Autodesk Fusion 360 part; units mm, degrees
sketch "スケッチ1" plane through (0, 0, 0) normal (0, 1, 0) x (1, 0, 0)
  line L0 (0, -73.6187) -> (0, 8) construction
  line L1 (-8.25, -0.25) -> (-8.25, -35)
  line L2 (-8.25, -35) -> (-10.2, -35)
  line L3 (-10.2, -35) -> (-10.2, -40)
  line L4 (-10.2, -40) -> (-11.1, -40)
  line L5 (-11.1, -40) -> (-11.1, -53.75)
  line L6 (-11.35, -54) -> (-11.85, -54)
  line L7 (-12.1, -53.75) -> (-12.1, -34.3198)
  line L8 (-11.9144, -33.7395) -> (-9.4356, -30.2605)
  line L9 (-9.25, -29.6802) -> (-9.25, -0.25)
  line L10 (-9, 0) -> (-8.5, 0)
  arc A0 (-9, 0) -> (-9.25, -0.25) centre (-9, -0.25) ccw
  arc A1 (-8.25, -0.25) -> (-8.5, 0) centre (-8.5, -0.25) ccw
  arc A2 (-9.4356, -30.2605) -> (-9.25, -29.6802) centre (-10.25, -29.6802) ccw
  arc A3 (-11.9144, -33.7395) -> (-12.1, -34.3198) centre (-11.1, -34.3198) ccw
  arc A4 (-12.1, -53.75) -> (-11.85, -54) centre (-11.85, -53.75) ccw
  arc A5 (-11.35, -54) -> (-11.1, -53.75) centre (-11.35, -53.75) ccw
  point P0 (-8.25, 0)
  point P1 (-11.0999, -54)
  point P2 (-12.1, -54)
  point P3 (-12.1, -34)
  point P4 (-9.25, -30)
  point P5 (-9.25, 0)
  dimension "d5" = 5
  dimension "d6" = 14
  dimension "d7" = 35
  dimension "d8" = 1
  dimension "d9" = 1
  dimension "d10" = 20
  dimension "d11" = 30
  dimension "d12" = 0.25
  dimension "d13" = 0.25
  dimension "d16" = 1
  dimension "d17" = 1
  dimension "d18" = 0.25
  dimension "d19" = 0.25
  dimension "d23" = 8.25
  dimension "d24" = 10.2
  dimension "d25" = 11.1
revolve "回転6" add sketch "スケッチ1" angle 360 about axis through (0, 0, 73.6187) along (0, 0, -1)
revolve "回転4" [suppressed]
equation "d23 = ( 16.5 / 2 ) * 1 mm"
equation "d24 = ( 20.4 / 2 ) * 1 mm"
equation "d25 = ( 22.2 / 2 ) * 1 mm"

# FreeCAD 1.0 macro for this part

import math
import FreeCAD as App
import Part
import Sketcher

V = App.Vector
Q = App.Units.Quantity

doc = App.newDocument("Part")
body = doc.addObject("PartDesign::Body", "Body")

# Sketch on XZ plane
sketch1 = body.newObject("Sketcher::SketchObject", "Sketch")
sketch1.AttachmentSupport = (doc.getObject("XZ_Plane"), [""])
sketch1.MapMode = "FlatFace"
sketch1.addGeometry([
    Part.LineSegment(V(-8.25, 35, 0), V(-8.25, 0.25, 0)),  # 0
    Part.ArcOfCircle(Part.Circle(V(-8.5, 0.25, 0), V(0, 0, 1), 0.25), math.radians(-90), math.radians(0)),  # 1
    Part.LineSegment(V(-8.5, 0, 0), V(-9, 0, 0)),  # 2
    Part.ArcOfCircle(Part.Circle(V(-9, 0.25, 0), V(0, 0, 1), 0.25), math.radians(180), math.radians(270)),  # 3
    Part.LineSegment(V(-9.25, 0.25, 0), V(-9.25, 29.6802, 0)),  # 4
    Part.ArcOfCircle(Part.Circle(V(-10.25, 29.6802, 0), V(0, 0, 1), 0.999998), math.radians(0), math.radians(35.471739)),  # 5
    Part.LineSegment(V(-9.4356, 30.2605, 0), V(-11.9144, 33.7395, 0)),  # 6
    Part.ArcOfCircle(Part.Circle(V(-11.1, 34.3198, 0), V(0, 0, 1), 0.999998), math.radians(180), math.radians(215.471739)),  # 7
    Part.LineSegment(V(-12.1, 34.3198, 0), V(-12.1, 53.75, 0)),  # 8
    Part.ArcOfCircle(Part.Circle(V(-11.85, 53.75, 0), V(0, 0, 1), 0.25), math.radians(90), math.radians(180)),  # 9
    Part.LineSegment(V(-11.85, 54, 0), V(-11.35, 54, 0)),  # 10
    Part.ArcOfCircle(Part.Circle(V(-11.35, 53.75, 0), V(0, 0, 1), 0.25), math.radians(0), math.radians(90)),  # 11
    Part.LineSegment(V(-11.1, 53.75, 0), V(-11.1, 40, 0)),  # 12
    Part.LineSegment(V(-11.1, 40, 0), V(-10.2, 40, 0)),  # 13
    Part.LineSegment(V(-10.2, 40, 0), V(-10.2, 35, 0)),  # 14
    Part.LineSegment(V(-10.2, 35, 0), V(-8.25, 35, 0)),  # 15
], False)
sketch1.addConstraint([
    Sketcher.Constraint("Tangent", 0, 2, 1, 2),
    Sketcher.Constraint("Tangent", 1, 1, 2, 1),
    Sketcher.Constraint("Tangent", 2, 2, 3, 2),
    Sketcher.Constraint("Tangent", 3, 1, 4, 1),
    Sketcher.Constraint("Tangent", 4, 2, 5, 1),
    Sketcher.Constraint("Tangent", 5, 2, 6, 1),
    Sketcher.Constraint("Tangent", 6, 2, 7, 2),
    Sketcher.Constraint("Tangent", 7, 1, 8, 1),
    Sketcher.Constraint("Tangent", 8, 2, 9, 2),
    Sketcher.Constraint("Tangent", 9, 1, 10, 1),
    Sketcher.Constraint("Tangent", 10, 2, 11, 2),
    Sketcher.Constraint("Tangent", 11, 1, 12, 1),
    Sketcher.Constraint("Coincident", 12, 2, 13, 1),
    Sketcher.Constraint("Coincident", 13, 2, 14, 1),
    Sketcher.Constraint("Coincident", 14, 2, 15, 1),
    Sketcher.Constraint("Coincident", 15, 2, 0, 1),
    Sketcher.Constraint("Vertical", 0),
    Sketcher.Constraint("Horizontal", 2),
    Sketcher.Constraint("Vertical", 4),
    Sketcher.Constraint("Vertical", 8),
    Sketcher.Constraint("Horizontal", 10),
    Sketcher.Constraint("Vertical", 12),
    Sketcher.Constraint("Horizontal", 13),
    Sketcher.Constraint("Vertical", 14),
    Sketcher.Constraint("Horizontal", 15),
    Sketcher.Constraint("Equal", 1, 3),
    Sketcher.Constraint("Equal", 5, 7),
    Sketcher.Constraint("Equal", 3, 9),
    Sketcher.Constraint("Equal", 9, 11),
    Sketcher.Constraint("PointOnObject", 1, 1, -1),
    Sketcher.Constraint("Vertical", 7, 3, 11, 1),
    Sketcher.Constraint("Equal", 2, 10),
    Sketcher.Constraint("Radius", 5, 1.0),
    Sketcher.Constraint("DistanceY", 14, 2, 14, 1, 5.0),
    Sketcher.Constraint("Radius", 1, 0.25),
    Sketcher.Constraint("DistanceY", -1, 1, 14, 2, 35.0),
    Sketcher.Constraint("DistanceX", 7, 3, -1, 1, 11.1),
    Sketcher.Constraint("DistanceX", 13, 2, -1, 1, 10.2),
    Sketcher.Constraint("DistanceX", 0, 2, -1, 1, 8.25),
    Sketcher.Constraint("DistanceY", -1, 1, 9, 1, 54.0),
    Sketcher.Constraint("Angle", 6, Q("125.47 deg")),
    Sketcher.Constraint("DistanceY", 4, 1, 4, 2, 29.4302),
])
revolution = body.newObject("PartDesign::Revolution", "Revolution")
revolution.Profile = sketch1
revolution.ReferenceAxis = (sketch1, ["V_Axis"])
revolution.Angle = 360

doc.recompute()
